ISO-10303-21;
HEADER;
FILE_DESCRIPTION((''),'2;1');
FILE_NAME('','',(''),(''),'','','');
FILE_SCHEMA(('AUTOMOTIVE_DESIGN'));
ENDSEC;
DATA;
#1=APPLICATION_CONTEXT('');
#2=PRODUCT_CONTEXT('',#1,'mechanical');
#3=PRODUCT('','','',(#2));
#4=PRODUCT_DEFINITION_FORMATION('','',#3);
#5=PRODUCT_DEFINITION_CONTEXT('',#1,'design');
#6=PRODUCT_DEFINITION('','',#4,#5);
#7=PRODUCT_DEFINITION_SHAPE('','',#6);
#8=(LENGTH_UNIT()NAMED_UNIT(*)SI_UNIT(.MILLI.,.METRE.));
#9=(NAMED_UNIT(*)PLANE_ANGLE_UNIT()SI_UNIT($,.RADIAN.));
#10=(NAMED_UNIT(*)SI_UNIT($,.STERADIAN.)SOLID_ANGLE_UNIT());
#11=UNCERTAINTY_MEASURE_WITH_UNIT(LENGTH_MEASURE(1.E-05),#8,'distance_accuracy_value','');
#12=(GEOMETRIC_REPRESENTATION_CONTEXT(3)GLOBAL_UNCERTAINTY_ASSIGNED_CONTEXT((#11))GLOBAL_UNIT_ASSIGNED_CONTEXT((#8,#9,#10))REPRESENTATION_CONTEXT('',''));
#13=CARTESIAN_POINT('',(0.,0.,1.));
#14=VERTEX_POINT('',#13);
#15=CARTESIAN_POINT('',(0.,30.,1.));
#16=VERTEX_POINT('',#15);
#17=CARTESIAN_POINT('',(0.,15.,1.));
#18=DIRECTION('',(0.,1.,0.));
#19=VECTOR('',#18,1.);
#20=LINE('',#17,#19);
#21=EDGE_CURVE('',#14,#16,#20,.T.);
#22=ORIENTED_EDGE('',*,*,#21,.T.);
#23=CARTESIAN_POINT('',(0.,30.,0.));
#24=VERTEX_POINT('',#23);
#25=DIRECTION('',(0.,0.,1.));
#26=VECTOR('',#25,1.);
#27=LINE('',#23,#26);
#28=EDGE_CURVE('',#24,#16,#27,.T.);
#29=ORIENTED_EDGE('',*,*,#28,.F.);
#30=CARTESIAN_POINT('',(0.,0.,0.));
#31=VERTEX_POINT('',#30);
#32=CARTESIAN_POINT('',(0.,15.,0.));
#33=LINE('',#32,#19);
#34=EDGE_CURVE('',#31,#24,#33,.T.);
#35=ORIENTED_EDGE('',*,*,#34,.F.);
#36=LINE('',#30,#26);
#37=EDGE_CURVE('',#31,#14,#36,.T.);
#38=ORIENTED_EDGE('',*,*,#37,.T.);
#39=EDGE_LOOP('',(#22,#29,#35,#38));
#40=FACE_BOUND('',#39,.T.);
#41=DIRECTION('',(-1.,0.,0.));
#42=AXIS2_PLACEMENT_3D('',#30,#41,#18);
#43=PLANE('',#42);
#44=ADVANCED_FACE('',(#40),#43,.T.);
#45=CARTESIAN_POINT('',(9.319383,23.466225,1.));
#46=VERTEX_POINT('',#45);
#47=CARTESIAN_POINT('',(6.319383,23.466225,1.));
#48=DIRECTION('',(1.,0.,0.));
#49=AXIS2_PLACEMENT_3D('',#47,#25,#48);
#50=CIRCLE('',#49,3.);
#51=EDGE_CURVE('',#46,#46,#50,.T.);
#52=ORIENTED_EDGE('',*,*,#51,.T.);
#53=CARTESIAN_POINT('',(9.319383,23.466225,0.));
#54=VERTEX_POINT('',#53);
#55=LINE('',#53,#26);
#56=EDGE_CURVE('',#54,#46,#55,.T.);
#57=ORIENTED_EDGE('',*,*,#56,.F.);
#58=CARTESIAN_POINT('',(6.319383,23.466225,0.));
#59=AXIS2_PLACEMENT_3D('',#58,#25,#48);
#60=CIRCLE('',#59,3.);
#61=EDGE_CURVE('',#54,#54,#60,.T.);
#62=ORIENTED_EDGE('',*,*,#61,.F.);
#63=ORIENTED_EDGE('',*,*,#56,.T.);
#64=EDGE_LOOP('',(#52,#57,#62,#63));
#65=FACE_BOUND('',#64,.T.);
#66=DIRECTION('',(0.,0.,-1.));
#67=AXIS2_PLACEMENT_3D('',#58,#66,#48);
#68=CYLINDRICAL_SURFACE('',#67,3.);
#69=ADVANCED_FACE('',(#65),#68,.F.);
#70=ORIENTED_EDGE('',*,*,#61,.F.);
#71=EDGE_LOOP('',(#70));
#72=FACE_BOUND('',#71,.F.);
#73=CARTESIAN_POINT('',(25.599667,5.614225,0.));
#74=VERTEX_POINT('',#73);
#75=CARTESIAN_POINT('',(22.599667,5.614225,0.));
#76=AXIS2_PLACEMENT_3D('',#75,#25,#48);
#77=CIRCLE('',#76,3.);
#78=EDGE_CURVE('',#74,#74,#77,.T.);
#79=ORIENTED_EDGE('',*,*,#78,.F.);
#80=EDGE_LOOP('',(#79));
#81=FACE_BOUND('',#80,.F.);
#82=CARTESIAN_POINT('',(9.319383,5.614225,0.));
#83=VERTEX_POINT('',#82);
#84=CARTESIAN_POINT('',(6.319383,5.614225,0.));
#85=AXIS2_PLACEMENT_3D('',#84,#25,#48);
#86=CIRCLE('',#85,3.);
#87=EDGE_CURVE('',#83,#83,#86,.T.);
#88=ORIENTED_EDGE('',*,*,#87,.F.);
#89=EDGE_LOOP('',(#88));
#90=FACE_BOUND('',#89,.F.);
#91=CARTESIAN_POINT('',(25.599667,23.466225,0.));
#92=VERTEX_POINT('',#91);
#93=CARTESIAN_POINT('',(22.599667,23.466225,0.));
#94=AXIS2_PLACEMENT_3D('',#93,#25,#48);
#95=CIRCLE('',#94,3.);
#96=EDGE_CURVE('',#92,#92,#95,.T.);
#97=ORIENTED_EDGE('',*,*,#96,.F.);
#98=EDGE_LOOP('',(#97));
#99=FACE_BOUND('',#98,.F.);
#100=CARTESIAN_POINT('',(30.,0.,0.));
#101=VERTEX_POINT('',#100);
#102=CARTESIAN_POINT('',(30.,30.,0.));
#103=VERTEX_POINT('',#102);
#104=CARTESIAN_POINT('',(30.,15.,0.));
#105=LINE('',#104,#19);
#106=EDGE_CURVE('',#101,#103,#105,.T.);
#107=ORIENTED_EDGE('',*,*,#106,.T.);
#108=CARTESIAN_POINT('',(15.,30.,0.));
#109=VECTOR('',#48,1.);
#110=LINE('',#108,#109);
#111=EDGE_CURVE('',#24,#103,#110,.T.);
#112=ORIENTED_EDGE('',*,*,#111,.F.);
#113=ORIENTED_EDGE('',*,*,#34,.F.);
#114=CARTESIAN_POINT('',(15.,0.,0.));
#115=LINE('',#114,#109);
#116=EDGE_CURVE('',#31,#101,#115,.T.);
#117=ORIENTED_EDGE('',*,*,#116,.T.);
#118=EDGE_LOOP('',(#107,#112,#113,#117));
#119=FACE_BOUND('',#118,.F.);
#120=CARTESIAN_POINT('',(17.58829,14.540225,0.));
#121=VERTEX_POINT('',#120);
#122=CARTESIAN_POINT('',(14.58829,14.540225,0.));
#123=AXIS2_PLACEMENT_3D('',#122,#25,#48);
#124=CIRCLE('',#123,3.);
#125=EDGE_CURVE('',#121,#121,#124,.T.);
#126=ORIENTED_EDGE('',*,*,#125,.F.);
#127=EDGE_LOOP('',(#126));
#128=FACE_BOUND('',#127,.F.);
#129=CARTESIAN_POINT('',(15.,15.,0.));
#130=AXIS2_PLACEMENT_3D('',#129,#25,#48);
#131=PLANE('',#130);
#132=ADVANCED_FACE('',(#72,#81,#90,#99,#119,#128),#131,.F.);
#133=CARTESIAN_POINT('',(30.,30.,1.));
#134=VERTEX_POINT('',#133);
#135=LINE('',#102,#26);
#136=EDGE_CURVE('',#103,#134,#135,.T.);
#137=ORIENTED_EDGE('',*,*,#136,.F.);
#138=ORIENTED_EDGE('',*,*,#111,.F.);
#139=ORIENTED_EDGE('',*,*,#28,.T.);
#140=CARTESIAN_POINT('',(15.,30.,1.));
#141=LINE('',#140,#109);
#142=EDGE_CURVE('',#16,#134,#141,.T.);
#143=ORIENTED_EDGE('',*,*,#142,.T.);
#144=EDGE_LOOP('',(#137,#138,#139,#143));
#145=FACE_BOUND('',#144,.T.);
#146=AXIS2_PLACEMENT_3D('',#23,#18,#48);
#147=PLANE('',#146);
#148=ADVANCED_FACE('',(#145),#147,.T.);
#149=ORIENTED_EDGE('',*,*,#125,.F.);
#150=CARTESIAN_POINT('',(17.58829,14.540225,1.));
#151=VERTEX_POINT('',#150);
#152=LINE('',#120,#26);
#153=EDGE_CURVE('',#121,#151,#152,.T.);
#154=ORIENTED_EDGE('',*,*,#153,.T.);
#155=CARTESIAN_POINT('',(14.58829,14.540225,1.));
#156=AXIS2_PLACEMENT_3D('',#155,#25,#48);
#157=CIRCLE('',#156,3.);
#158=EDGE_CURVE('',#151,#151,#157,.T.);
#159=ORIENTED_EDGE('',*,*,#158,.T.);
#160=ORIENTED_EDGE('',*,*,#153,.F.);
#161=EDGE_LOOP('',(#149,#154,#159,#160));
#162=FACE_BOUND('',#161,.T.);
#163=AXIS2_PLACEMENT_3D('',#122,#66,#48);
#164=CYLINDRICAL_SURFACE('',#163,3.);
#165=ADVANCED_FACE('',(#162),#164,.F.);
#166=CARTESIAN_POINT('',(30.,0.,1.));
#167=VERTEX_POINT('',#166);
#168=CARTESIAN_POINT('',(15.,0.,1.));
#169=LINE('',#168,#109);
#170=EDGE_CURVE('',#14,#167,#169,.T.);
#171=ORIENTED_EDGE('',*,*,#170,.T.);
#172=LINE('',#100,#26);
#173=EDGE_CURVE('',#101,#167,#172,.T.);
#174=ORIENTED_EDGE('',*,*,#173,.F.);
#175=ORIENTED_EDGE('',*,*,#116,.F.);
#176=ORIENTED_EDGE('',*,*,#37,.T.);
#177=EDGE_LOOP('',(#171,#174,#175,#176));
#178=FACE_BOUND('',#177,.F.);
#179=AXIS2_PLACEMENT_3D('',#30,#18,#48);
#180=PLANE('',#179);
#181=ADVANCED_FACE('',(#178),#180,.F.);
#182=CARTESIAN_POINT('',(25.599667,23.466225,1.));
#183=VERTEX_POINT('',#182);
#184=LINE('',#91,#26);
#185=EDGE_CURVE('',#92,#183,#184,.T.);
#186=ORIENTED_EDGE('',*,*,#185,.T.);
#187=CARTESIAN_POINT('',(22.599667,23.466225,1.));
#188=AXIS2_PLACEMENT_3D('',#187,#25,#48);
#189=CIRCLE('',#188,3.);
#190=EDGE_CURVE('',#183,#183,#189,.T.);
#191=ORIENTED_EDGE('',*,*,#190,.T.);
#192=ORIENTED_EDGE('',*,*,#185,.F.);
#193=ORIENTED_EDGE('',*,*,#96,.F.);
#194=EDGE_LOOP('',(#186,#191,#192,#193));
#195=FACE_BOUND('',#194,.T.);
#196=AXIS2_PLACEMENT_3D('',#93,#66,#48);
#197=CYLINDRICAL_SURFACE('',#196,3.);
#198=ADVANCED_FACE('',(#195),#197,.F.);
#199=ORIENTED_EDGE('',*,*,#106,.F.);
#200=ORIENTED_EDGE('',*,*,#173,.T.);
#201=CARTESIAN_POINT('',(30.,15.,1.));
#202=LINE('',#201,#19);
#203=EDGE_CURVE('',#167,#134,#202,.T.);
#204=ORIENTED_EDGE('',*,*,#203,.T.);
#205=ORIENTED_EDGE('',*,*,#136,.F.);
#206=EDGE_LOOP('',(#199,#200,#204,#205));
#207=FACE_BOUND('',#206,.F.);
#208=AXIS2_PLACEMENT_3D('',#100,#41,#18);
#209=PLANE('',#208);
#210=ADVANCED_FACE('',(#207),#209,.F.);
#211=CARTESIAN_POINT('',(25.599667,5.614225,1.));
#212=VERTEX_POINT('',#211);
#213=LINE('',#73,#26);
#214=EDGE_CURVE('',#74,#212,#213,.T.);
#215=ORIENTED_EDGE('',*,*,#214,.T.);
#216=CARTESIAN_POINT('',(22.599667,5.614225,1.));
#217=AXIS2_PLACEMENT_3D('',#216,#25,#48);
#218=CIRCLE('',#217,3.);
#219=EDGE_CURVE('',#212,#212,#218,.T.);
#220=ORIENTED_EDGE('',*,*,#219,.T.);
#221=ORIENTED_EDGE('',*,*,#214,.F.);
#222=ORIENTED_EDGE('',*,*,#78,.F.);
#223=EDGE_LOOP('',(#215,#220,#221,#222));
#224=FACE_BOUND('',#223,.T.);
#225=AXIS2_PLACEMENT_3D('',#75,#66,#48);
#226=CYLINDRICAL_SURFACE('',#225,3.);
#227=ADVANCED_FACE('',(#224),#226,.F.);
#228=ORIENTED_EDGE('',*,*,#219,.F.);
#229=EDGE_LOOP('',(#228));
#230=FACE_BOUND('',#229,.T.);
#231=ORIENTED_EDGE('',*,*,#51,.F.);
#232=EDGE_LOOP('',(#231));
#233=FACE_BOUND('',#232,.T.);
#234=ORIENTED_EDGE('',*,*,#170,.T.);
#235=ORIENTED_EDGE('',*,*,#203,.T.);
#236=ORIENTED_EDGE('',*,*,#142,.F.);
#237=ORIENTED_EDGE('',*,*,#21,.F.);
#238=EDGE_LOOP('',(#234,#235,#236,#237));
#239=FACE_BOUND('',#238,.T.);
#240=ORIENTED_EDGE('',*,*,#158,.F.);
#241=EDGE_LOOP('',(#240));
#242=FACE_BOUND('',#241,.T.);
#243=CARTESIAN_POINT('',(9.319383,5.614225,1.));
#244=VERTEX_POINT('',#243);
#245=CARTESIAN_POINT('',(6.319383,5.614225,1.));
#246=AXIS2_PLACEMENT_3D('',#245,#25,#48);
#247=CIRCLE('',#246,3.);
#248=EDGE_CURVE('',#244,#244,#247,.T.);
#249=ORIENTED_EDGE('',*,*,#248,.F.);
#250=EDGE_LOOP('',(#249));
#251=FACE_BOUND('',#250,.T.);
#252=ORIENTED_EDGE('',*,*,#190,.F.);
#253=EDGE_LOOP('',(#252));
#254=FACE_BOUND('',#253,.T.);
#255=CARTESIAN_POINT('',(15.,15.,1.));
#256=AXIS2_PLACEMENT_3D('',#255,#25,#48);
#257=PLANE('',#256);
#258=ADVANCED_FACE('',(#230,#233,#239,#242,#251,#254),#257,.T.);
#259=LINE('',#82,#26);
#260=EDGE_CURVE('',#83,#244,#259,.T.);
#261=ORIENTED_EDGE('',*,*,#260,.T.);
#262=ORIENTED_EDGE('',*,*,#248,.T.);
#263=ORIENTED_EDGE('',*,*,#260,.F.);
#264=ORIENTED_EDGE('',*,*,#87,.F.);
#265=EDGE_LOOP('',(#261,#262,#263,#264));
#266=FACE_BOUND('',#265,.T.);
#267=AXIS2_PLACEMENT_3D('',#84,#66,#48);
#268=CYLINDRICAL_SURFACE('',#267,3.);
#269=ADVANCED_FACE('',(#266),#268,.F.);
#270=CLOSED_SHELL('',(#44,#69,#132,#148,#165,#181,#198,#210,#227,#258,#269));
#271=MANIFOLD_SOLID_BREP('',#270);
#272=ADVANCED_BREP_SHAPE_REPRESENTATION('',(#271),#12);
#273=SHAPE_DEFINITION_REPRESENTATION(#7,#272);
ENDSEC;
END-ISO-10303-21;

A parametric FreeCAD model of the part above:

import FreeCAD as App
import Part
import Sketcher

doc = App.newDocument("Part")
body = doc.addObject("PartDesign::Body", "Body")

# Sketch on XY plane
sketch1 = doc.addObject("Sketcher::SketchObject", "Sketch")
body.addObject(sketch1)
sketch1.AttachmentSupport = (doc.XY_Plane, [""])
sketch1.MapMode = "FlatFace"
sketch1.addGeometry([
    Part.LineSegment(App.Vector(0, 30, 0), App.Vector(0, 0, 0)),  # 0
    Part.LineSegment(App.Vector(0, 0, 0), App.Vector(30, 0, 0)),  # 1
    Part.LineSegment(App.Vector(30, 0, 0), App.Vector(30, 30, 0)),  # 2
    Part.LineSegment(App.Vector(30, 30, 0), App.Vector(0, 30, 0)),  # 3
    Part.Circle(App.Vector(6.3, 5.6, 0), App.Vector(0, 0, 1), 3),  # 4
    Part.Circle(App.Vector(22.6, 5.6, 0), App.Vector(0, 0, 1), 3),  # 5
    Part.Circle(App.Vector(14.6, 14.5, 0), App.Vector(0, 0, 1), 3),  # 6
    Part.Circle(App.Vector(6.3, 23.5, 0), App.Vector(0, 0, 1), 3),  # 7
    Part.Circle(App.Vector(22.6, 23.5, 0), App.Vector(0, 0, 1), 3),  # 8
], False)
sketch1.addConstraint([
    Sketcher.Constraint("Coincident", 0, 2, 1, 1),
    Sketcher.Constraint("Coincident", 1, 2, 2, 1),
    Sketcher.Constraint("Coincident", 2, 2, 3, 1),
    Sketcher.Constraint("Coincident", 3, 2, 0, 1),
    Sketcher.Constraint("Vertical", 0),
    Sketcher.Constraint("Horizontal", 1),
    Sketcher.Constraint("Vertical", 2),
    Sketcher.Constraint("Horizontal", 3),
    Sketcher.Constraint("Coincident", 0, 2, -1, 1),
    Sketcher.Constraint("Equal", 4, 5),
    Sketcher.Constraint("Equal", 5, 6),
    Sketcher.Constraint("Equal", 6, 7),
    Sketcher.Constraint("Equal", 7, 8),
    Sketcher.Constraint("Horizontal", 4, 3, 5, 3),
    Sketcher.Constraint("Horizontal", 7, 3, 8, 3),
    Sketcher.Constraint("Vertical", 4, 3, 7, 3),
    Sketcher.Constraint("Vertical", 5, 3, 8, 3),
    Sketcher.Constraint("Equal", 3, 0),
    Sketcher.Constraint("Diameter", 4, 6.0),
    Sketcher.Constraint("DistanceX", 1, 1, 1, 2, 30.0),
    Sketcher.Constraint("DistanceY", 5, 3, 6, 3, 8.926),
    Sketcher.Constraint("DistanceY", 6, 3, 7, 3, 8.926),
    Sketcher.Constraint("DistanceX", -1, 1, 6, 3, 14.58829),
    Sketcher.Constraint("DistanceX", -1, 1, 4, 3, 6.319383),
    Sketcher.Constraint("DistanceY", -1, 1, 4, 3, 5.614225),
    Sketcher.Constraint("DistanceX", -1, 1, 5, 3, 22.599667),
])
pad1 = doc.addObject("PartDesign::Pad", "Pad")
body.addObject(pad1)
pad1.Profile = sketch1
pad1.Length = 1

doc.recompute()
